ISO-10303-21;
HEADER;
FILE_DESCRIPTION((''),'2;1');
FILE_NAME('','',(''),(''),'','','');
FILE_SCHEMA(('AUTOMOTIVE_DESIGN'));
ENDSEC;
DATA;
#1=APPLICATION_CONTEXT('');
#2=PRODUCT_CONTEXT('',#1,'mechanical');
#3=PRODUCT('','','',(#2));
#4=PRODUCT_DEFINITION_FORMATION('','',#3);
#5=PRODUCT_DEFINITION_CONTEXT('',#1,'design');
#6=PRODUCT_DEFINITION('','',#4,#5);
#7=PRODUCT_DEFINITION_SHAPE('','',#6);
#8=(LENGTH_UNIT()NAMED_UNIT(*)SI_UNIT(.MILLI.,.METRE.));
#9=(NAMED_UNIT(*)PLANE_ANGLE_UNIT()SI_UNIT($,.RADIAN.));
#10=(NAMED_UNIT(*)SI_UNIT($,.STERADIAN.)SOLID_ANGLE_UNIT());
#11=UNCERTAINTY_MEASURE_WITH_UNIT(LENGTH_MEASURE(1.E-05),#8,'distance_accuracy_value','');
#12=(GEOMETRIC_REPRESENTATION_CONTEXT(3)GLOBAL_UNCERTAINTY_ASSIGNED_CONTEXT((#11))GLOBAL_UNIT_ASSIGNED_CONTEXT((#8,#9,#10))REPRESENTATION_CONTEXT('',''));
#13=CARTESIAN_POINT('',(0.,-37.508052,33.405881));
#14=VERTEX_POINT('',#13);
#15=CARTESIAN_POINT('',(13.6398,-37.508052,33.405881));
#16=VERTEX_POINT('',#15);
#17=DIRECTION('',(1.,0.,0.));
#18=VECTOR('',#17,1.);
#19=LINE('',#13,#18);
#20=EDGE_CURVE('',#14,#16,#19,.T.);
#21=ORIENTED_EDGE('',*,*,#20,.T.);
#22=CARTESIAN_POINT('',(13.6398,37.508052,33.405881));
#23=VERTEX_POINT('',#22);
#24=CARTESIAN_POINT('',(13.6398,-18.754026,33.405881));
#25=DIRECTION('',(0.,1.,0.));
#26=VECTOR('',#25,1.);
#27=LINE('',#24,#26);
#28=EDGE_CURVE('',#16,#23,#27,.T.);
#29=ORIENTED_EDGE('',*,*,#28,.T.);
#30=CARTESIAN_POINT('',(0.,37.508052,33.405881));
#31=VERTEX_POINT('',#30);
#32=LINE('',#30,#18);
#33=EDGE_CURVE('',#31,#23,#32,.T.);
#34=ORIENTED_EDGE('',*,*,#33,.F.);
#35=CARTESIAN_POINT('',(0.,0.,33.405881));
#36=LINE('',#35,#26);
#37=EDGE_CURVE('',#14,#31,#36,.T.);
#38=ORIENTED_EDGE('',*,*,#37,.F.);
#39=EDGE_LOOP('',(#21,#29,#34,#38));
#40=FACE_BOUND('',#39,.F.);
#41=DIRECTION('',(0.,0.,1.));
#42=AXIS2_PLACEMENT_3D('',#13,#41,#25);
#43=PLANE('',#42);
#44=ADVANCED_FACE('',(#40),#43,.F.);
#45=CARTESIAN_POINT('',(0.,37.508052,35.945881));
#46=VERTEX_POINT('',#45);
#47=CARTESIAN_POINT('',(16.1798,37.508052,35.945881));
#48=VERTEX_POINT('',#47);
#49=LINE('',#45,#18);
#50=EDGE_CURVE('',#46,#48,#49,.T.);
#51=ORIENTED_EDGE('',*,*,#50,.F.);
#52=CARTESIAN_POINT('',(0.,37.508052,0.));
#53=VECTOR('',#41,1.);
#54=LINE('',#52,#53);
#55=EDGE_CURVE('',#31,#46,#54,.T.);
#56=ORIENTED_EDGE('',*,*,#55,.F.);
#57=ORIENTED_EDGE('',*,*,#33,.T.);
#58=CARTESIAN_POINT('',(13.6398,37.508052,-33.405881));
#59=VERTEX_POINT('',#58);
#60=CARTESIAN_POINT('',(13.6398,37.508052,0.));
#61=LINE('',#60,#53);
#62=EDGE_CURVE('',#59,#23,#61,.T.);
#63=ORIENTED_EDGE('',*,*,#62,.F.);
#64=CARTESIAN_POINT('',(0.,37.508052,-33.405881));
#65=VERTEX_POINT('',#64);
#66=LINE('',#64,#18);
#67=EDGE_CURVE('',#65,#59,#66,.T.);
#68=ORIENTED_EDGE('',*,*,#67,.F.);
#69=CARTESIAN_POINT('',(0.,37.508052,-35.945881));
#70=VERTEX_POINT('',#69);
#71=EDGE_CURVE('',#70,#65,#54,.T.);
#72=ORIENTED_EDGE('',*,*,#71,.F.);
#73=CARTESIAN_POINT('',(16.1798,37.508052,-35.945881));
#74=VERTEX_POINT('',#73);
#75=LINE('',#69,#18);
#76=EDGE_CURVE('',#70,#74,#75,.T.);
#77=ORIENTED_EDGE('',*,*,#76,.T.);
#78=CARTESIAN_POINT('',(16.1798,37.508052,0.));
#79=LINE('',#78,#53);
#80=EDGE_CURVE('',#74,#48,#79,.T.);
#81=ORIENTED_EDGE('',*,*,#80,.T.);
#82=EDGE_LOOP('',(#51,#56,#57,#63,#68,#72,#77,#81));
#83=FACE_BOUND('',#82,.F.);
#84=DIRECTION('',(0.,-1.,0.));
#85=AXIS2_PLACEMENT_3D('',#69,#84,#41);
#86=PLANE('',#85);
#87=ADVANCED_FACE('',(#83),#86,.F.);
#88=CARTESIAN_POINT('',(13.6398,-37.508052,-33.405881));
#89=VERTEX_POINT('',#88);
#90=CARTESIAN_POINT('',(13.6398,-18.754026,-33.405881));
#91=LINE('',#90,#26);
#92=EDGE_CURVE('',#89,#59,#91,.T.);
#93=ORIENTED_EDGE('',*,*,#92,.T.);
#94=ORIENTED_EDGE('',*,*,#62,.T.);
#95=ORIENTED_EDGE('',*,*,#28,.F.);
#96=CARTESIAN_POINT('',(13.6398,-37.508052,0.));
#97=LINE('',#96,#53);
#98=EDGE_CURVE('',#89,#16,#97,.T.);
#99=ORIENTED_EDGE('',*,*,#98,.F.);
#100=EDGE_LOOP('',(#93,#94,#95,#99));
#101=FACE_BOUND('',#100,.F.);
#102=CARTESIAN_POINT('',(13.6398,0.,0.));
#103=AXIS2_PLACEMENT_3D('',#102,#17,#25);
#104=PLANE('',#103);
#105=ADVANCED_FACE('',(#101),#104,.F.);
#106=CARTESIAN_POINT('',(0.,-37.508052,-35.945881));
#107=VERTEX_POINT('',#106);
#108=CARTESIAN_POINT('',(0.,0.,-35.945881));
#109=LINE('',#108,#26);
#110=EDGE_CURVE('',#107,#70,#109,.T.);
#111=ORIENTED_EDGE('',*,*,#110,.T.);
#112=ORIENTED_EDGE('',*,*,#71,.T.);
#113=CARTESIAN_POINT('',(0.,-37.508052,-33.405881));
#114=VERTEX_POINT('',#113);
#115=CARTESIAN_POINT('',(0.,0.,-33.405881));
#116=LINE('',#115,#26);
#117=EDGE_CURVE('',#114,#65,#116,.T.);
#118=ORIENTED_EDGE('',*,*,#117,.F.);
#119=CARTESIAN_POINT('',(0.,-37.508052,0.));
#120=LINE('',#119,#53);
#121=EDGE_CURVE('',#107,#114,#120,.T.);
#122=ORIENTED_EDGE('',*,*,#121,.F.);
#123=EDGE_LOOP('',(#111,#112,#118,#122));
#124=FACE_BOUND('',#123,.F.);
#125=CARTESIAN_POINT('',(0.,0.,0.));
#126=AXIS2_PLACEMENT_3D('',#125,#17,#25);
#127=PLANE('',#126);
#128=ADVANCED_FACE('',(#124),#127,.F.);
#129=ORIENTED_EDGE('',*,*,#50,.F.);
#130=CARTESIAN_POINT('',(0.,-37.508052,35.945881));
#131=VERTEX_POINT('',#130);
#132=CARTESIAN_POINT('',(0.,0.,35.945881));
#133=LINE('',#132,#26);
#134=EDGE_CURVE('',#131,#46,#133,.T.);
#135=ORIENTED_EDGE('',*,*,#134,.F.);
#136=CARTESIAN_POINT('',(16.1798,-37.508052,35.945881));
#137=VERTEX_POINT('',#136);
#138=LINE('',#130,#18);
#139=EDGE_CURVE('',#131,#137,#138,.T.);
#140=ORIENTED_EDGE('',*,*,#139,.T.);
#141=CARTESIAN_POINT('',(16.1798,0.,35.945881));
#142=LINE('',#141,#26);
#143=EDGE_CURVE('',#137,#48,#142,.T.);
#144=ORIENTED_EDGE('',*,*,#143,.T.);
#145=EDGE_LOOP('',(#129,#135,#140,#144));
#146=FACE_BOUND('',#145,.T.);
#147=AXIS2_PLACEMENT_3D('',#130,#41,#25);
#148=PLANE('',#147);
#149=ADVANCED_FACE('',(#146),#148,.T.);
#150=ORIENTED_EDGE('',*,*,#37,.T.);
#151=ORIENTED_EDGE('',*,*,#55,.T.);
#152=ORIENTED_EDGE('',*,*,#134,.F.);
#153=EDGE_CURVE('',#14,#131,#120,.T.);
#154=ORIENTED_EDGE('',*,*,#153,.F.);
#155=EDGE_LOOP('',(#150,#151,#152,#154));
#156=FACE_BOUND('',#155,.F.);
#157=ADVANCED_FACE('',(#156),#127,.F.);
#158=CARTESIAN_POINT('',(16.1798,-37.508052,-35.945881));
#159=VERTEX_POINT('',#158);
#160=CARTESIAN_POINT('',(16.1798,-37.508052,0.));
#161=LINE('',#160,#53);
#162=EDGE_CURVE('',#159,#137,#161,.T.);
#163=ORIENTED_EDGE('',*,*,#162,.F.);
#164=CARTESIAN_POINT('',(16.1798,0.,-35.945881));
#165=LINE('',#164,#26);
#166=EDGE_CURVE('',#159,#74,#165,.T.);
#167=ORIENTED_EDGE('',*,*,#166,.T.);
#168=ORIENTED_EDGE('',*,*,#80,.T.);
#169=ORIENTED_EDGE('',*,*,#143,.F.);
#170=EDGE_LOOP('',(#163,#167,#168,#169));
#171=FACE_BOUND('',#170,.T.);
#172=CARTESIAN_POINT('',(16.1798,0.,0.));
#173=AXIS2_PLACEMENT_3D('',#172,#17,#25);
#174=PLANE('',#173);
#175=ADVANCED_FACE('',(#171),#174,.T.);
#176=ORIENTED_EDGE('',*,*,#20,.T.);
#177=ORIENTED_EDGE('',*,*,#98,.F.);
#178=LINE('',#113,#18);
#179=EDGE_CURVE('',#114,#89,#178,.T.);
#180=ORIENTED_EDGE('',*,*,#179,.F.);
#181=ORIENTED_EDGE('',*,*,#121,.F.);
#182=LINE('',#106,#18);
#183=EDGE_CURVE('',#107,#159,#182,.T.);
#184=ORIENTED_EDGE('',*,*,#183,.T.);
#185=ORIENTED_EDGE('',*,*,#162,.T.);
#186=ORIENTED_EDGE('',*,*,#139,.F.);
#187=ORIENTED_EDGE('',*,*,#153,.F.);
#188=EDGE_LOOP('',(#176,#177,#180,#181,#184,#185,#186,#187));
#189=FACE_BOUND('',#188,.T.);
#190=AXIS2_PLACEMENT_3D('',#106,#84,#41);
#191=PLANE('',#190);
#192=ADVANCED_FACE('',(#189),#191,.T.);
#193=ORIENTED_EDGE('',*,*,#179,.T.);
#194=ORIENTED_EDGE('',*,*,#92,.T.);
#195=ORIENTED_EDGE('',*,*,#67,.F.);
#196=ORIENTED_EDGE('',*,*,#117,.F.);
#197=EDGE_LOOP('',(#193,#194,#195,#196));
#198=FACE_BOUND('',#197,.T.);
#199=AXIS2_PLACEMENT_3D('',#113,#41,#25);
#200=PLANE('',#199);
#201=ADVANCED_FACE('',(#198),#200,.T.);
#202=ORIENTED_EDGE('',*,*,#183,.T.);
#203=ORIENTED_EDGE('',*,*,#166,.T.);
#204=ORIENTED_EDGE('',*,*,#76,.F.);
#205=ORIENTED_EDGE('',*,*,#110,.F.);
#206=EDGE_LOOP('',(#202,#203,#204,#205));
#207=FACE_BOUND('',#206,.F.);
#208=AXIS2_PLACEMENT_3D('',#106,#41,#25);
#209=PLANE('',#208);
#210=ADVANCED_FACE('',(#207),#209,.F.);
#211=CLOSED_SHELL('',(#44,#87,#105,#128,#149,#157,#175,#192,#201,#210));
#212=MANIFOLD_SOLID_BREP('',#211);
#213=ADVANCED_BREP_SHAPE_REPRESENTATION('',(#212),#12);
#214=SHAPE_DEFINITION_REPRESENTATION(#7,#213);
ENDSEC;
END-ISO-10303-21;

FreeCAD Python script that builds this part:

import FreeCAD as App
import Part
import Sketcher
Q = App.Units.Quantity


def faces_at(feature, points):
    """Names of the faces that lie closest to the given points."""
    faces = feature.Shape.Faces
    near = lambda p: min(range(len(faces)), key=lambda i: faces[i].distToShape(Part.Vertex(*p))[0])
    return sorted({f"Face{near(p) + 1}" for p in points})

doc = App.newDocument("Part")
body = doc.addObject("PartDesign::Body", "Body")

sketch1 = body.newObject("Sketcher::SketchObject", "Sketch")
sketch1.AttachmentSupport = (doc.getObject("YZ_Plane"), [""])
sketch1.MapMode = "FlatFace"
sketch1.addGeometry([
    Part.LineSegment(App.Vector(-38, 36, 0), App.Vector(-38, -36, 0)),
    Part.LineSegment(App.Vector(-38, -36, 0), App.Vector(38, -36, 0)),
    Part.LineSegment(App.Vector(38, -36, 0), App.Vector(38, 36, 0)),
    Part.LineSegment(App.Vector(38, 36, 0), App.Vector(-38, 36, 0)),
], False)
sketch1.addConstraint([
    Sketcher.Constraint("Coincident", 0, 2, 1, 1),
    Sketcher.Constraint("Coincident", 1, 2, 2, 1),
    Sketcher.Constraint("Coincident", 2, 2, 3, 1),
    Sketcher.Constraint("Coincident", 3, 2, 0, 1),
    Sketcher.Constraint("Vertical", 0),
    Sketcher.Constraint("Horizontal", 1),
    Sketcher.Constraint("Vertical", 2),
    Sketcher.Constraint("Horizontal", 3),
    Sketcher.Constraint("Symmetric", 0, 2, 2, 2, -1, 1),
    Sketcher.Constraint("DistanceY", 0, 2, 0, 1, 71.891762),
    Sketcher.Constraint("DistanceX", 1, 1, 1, 2, 75.016104),
])
pad1 = body.newObject("PartDesign::Pad", "Pad")
pad1.Profile = sketch1
pad1.Length = Q("0.637 in")
doc.recompute()

thickness = body.newObject("PartDesign::Thickness", "Thickness")
thickness.Base = (pad1, faces_at(pad1, [(0, 0, 0), (8.09, -37.508, 0), (8.09, 37.508, 0)]))
thickness.Value = Q("0.1 in")
thickness.Reversed = True
thickness.Join = "Arc"

doc.recompute()
